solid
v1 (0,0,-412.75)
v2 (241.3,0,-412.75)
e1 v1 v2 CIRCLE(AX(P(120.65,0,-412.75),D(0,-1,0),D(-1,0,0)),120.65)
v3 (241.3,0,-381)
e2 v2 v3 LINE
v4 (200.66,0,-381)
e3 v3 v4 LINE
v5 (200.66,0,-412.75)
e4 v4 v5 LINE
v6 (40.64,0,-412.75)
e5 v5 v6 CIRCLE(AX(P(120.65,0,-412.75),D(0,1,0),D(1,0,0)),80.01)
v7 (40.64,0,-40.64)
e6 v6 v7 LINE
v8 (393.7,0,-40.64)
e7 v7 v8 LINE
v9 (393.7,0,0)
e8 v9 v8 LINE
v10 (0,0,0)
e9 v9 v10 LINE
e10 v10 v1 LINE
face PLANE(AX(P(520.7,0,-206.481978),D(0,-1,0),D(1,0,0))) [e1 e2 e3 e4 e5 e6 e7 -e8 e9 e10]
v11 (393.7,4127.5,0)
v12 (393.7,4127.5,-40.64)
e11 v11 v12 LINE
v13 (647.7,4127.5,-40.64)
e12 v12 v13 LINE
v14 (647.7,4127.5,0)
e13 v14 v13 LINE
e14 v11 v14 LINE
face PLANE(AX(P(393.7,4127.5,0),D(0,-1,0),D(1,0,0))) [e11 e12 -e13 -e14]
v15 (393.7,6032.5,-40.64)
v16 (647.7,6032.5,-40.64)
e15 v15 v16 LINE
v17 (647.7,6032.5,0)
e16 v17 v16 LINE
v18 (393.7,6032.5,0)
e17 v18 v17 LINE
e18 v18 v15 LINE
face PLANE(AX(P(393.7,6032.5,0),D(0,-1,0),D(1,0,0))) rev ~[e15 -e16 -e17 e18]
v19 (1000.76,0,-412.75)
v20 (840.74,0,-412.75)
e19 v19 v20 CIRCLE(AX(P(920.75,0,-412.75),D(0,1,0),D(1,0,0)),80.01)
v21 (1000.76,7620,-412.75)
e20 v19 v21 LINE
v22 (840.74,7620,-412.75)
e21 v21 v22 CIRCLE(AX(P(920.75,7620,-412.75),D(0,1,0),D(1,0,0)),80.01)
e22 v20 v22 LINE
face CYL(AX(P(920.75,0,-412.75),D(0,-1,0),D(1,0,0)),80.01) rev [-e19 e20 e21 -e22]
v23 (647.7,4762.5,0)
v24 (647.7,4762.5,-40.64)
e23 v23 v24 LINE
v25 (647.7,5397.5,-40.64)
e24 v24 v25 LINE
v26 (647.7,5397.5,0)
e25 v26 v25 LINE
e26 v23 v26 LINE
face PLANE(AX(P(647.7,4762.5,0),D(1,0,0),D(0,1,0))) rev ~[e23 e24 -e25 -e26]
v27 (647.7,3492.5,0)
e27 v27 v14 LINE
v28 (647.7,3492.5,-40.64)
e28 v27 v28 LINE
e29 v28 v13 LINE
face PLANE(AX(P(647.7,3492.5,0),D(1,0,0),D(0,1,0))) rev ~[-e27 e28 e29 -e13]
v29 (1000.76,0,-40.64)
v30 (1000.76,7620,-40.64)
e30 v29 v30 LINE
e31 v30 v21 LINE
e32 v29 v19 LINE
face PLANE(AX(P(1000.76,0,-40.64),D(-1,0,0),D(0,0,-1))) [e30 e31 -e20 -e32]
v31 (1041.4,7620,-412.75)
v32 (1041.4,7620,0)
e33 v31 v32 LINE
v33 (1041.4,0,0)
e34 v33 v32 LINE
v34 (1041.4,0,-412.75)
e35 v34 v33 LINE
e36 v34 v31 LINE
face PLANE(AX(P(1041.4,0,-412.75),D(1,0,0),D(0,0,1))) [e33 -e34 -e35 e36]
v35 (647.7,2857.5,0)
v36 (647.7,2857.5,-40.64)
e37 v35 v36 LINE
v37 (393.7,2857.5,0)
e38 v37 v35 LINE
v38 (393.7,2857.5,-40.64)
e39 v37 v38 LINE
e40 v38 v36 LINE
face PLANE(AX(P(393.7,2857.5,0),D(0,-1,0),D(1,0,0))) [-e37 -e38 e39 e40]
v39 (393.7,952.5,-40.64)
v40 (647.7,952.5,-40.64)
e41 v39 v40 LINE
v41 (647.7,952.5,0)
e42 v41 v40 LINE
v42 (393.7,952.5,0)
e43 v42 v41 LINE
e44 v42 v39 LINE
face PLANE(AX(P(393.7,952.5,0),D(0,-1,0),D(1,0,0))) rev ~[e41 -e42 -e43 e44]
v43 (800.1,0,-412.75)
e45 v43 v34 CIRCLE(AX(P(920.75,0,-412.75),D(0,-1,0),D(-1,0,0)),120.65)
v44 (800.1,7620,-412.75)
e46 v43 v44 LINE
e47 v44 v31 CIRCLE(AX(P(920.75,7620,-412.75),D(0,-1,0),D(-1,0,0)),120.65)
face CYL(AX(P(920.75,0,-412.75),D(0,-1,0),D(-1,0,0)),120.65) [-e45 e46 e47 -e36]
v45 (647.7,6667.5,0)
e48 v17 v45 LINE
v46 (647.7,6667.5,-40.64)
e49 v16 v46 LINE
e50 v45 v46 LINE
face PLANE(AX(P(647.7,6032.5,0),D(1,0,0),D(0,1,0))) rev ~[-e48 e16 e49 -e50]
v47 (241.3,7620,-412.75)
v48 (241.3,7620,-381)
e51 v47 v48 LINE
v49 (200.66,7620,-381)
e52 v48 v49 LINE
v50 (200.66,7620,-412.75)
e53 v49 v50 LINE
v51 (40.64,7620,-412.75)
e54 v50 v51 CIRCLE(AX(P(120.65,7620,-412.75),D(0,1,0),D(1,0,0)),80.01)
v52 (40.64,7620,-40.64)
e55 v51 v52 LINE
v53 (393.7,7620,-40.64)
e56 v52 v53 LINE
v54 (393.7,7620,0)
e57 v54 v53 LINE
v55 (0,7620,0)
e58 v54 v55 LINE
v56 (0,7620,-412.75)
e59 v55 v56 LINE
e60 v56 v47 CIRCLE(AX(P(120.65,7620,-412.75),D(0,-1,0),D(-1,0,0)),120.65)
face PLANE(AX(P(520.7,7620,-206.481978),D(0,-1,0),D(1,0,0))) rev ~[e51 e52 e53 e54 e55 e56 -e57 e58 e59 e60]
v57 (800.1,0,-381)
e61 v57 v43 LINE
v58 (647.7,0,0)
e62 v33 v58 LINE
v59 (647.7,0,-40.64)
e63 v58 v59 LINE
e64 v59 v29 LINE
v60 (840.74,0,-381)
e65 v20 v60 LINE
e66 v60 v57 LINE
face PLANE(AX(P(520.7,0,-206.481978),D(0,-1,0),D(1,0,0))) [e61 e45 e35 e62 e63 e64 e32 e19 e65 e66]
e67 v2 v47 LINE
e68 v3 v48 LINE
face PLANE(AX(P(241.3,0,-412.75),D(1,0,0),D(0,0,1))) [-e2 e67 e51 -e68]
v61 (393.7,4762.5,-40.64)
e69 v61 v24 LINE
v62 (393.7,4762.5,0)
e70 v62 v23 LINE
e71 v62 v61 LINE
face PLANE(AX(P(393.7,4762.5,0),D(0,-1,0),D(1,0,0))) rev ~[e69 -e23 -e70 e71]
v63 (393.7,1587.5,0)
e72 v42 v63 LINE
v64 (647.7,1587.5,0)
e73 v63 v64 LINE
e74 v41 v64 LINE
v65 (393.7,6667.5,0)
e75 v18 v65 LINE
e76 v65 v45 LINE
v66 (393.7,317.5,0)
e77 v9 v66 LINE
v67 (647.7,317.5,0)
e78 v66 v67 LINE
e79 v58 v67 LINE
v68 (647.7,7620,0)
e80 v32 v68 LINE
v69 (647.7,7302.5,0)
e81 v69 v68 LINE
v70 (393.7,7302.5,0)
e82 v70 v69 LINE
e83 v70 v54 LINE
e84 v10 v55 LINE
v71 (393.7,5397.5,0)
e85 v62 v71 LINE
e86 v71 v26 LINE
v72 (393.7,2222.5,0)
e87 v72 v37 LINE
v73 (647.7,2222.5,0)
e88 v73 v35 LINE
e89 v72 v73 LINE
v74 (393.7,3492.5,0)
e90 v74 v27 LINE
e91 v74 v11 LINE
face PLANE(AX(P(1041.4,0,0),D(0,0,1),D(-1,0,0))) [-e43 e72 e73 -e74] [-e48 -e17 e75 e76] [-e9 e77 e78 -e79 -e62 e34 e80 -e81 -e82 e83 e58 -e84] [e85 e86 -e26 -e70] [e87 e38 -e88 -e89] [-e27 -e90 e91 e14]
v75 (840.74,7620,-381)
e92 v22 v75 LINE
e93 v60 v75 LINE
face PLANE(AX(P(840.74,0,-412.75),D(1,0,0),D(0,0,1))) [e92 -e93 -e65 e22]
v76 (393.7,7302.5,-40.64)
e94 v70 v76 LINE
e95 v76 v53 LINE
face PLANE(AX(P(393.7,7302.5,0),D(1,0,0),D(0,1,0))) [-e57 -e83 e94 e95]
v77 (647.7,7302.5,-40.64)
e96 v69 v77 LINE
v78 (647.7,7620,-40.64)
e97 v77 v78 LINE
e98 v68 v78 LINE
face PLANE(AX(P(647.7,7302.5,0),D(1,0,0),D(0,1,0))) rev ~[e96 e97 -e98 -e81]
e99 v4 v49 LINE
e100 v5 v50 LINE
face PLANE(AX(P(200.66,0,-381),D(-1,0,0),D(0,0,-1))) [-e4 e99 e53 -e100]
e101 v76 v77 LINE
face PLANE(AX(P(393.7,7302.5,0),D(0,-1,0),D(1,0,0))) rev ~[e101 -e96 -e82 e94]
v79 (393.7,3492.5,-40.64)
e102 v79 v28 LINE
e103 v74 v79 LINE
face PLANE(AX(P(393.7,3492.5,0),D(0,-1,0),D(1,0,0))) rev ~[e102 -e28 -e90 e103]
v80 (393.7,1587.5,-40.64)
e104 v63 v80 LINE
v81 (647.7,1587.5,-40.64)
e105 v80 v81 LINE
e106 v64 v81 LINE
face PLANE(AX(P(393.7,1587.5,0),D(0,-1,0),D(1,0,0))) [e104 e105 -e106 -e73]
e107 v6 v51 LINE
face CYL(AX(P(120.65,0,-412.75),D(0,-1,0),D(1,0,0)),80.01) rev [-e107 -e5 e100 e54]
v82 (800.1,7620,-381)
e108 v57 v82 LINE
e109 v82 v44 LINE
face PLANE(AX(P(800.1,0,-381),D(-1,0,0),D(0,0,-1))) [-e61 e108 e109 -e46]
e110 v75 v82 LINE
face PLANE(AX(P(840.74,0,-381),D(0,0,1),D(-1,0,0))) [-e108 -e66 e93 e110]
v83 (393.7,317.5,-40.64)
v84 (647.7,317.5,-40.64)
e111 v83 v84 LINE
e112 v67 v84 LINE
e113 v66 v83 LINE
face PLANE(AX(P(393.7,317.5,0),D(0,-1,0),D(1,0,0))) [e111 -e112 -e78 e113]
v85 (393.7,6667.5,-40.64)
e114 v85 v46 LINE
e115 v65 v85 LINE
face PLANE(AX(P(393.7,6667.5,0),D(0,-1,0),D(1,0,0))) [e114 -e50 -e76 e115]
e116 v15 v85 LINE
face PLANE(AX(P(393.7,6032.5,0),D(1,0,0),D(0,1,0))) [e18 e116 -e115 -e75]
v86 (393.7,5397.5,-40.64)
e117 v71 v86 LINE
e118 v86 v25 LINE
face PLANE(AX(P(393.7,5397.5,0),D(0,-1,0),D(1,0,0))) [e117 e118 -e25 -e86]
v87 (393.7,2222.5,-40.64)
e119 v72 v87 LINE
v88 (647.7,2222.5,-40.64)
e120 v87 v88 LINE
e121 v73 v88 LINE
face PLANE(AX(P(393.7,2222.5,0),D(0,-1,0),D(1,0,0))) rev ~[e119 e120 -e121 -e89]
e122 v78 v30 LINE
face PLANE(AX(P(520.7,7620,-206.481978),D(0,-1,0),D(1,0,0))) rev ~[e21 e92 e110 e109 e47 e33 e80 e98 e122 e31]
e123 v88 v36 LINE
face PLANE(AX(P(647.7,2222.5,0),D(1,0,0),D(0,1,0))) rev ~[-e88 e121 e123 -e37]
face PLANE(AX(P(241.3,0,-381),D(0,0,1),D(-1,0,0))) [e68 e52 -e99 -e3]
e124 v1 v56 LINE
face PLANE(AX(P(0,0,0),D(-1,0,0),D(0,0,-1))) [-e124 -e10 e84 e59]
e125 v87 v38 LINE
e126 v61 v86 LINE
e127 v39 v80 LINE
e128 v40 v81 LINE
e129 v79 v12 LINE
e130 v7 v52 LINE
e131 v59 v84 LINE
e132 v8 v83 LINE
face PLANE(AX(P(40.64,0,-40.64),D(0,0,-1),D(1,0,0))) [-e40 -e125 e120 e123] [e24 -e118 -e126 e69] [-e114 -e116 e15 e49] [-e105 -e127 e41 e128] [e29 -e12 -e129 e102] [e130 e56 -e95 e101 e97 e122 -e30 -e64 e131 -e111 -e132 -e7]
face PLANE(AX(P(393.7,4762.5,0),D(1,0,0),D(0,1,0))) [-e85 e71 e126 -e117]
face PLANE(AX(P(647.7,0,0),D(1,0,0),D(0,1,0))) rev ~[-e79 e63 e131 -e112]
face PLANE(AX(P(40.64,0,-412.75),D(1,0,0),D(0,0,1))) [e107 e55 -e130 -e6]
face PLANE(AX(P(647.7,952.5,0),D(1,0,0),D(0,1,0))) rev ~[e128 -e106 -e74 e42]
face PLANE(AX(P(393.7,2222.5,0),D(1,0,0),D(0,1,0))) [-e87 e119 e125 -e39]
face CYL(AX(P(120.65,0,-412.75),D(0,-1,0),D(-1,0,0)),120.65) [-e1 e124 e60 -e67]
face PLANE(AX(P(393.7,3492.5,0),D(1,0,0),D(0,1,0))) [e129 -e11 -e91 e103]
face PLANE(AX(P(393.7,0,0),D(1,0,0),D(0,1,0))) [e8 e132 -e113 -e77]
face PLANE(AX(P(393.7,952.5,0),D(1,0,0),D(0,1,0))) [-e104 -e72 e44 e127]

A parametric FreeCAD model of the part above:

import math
import FreeCAD as App
import Part
import Sketcher
Q = App.Units.Quantity


def add_polygon(sketch, points):
    """Adds a closed chain of lines whose ends are joined by coincident constraints."""
    first, n = sketch.GeometryCount, len(points)
    for a, b in zip(points, points[1:] + points[:1]):
        sketch.addGeometry(Part.LineSegment(App.Vector(*a, 0), App.Vector(*b, 0)), False)
    for i in range(n):
        sketch.addConstraint(Sketcher.Constraint("Coincident", first + i, 2, first + (i + 1) % n, 1))

doc = App.newDocument("Part")
body = doc.addObject("PartDesign::Body", "Body")

sketch1 = body.newObject("Sketcher::SketchObject", "Sketch")
sketch1.AttachmentSupport = (doc.getObject("XZ_Plane"), [""])
sketch1.MapMode = "FlatFace"
sketch1.addGeometry([
    Part.LineSegment(App.Vector(1041, 0, 0), App.Vector(0, 0, 0)),
    Part.LineSegment(App.Vector(0, 0, 0), App.Vector(0, -413, 0)),
    Part.ArcOfCircle(Part.Circle(App.Vector(121, -413, 0), App.Vector(0, 0, 1), 121), math.radians(180), math.radians(360)),
    Part.LineSegment(App.Vector(241, -413, 0), App.Vector(241, -381, 0)),
    Part.LineSegment(App.Vector(241, -381, 0), App.Vector(201, -381, 0)),
    Part.LineSegment(App.Vector(201, -381, 0), App.Vector(201, -413, 0)),
    Part.ArcOfCircle(Part.Circle(App.Vector(121, -413, 0), App.Vector(0, 0, 1), 80), math.radians(180), math.radians(360)),
    Part.LineSegment(App.Vector(41, -413, 0), App.Vector(41, -41, 0)),
    Part.LineSegment(App.Vector(41, -41, 0), App.Vector(1001, -41, 0)),
    Part.LineSegment(App.Vector(1001, -41, 0), App.Vector(1001, -413, 0)),
    Part.ArcOfCircle(Part.Circle(App.Vector(921, -413, 0), App.Vector(0, 0, 1), 80), math.radians(180), math.radians(360)),
    Part.LineSegment(App.Vector(841, -413, 0), App.Vector(841, -381, 0)),
    Part.LineSegment(App.Vector(841, -381, 0), App.Vector(800, -381, 0)),
    Part.LineSegment(App.Vector(800, -381, 0), App.Vector(800, -413, 0)),
    Part.ArcOfCircle(Part.Circle(App.Vector(921, -413, 0), App.Vector(0, 0, 1), 121), math.radians(180), math.radians(360)),
    Part.LineSegment(App.Vector(1041, -413, 0), App.Vector(1041, 0, 0)),
], False)
sketch1.addConstraint([
    Sketcher.Constraint("Coincident", 0, 2, 1, 1),
    Sketcher.Constraint("Tangent", 1, 2, 2, 1),
    Sketcher.Constraint("Tangent", 2, 2, 3, 1),
    Sketcher.Constraint("Coincident", 3, 2, 4, 1),
    Sketcher.Constraint("Coincident", 4, 2, 5, 1),
    Sketcher.Constraint("Tangent", 5, 2, 6, 2),
    Sketcher.Constraint("Tangent", 6, 1, 7, 1),
    Sketcher.Constraint("Coincident", 7, 2, 8, 1),
    Sketcher.Constraint("Coincident", 8, 2, 9, 1),
    Sketcher.Constraint("Tangent", 9, 2, 10, 2),
    Sketcher.Constraint("Tangent", 10, 1, 11, 1),
    Sketcher.Constraint("Coincident", 11, 2, 12, 1),
    Sketcher.Constraint("Coincident", 12, 2, 13, 1),
    Sketcher.Constraint("Tangent", 13, 2, 14, 1),
    Sketcher.Constraint("Tangent", 14, 2, 15, 1),
    Sketcher.Constraint("Coincident", 15, 2, 0, 1),
    Sketcher.Constraint("Horizontal", 0),
    Sketcher.Constraint("Vertical", 1),
    Sketcher.Constraint("Vertical", 3),
    Sketcher.Constraint("Horizontal", 4),
    Sketcher.Constraint("Vertical", 5),
    Sketcher.Constraint("Vertical", 7),
    Sketcher.Constraint("Horizontal", 8),
    Sketcher.Constraint("Vertical", 9),
    Sketcher.Constraint("Vertical", 11),
    Sketcher.Constraint("Horizontal", 12),
    Sketcher.Constraint("Vertical", 13),
    Sketcher.Constraint("Vertical", 15),
    Sketcher.Constraint("Coincident", 0, 2, -1, 1),
    Sketcher.Constraint("Coincident", 6, 3, 2, 3),
    Sketcher.Constraint("Coincident", 14, 3, 10, 3),
    Sketcher.Constraint("Equal", 6, 10),
    Sketcher.Constraint("Equal", 2, 14),
    Sketcher.Constraint("Horizontal", 6, 3, 10, 3),
    Sketcher.Constraint("Horizontal", 4, 2, 11, 2),
    Sketcher.Constraint("DistanceX", 0, 2, 0, 1, Q("41 in")),
    Sketcher.Constraint("Radius", 2, Q("4.75 in")),
    Sketcher.Constraint("Radius", 6, Q("3.15 in")),
    Sketcher.Constraint("DistanceY", 3, 2, -1, 1, Q("15 in")),
    Sketcher.Constraint("DistanceY", 1, 2, 1, 1, Q("16.25 in")),
    Sketcher.Constraint("DistanceY", 7, 1, 7, 2, Q("14.65 in")),
])
pad1 = body.newObject("PartDesign::Pad", "Pad")
pad1.Profile = sketch1
pad1.Length = Q("300 in")
pad1.Reversed = True

sketch2 = body.newObject("Sketcher::SketchObject", "Sketch001")
sketch2.AttachmentSupport = (doc.getObject("XY_Plane"), [""])
sketch2.MapMode = "FlatFace"
add_polygon(sketch2, [(394, 318), (394, 0), (648, 0), (648, 318)])
add_polygon(sketch2, [(394, 1588), (394, 952), (648, 952), (648, 1588)])
add_polygon(sketch2, [(394, 2858), (394, 2222), (648, 2222), (648, 2858)])
add_polygon(sketch2, [(394, 4128), (394, 3492), (648, 3492), (648, 4128)])
add_polygon(sketch2, [(394, 5398), (394, 4762), (648, 4762), (648, 5398)])
add_polygon(sketch2, [(394, 6668), (394, 6032), (648, 6032), (648, 6668)])
add_polygon(sketch2, [(394, 7620), (394, 7302), (648, 7302), (648, 7620)])
sketch2.addConstraint([
    Sketcher.Constraint("Vertical", 0),
    Sketcher.Constraint("Horizontal", 1),
    Sketcher.Constraint("Vertical", 2),
    Sketcher.Constraint("Horizontal", 3),
    Sketcher.Constraint("Vertical", 4),
    Sketcher.Constraint("Horizontal", 5),
    Sketcher.Constraint("Vertical", 6),
    Sketcher.Constraint("Horizontal", 7),
    Sketcher.Constraint("Vertical", 8),
    Sketcher.Constraint("Horizontal", 9),
    Sketcher.Constraint("Vertical", 10),
    Sketcher.Constraint("Horizontal", 11),
    Sketcher.Constraint("Vertical", 12),
    Sketcher.Constraint("Horizontal", 13),
    Sketcher.Constraint("Vertical", 14),
    Sketcher.Constraint("Horizontal", 15),
    Sketcher.Constraint("Vertical", 16),
    Sketcher.Constraint("Horizontal", 17),
    Sketcher.Constraint("Vertical", 18),
    Sketcher.Constraint("Horizontal", 19),
    Sketcher.Constraint("Vertical", 20),
    Sketcher.Constraint("Horizontal", 21),
    Sketcher.Constraint("Vertical", 22),
    Sketcher.Constraint("Horizontal", 23),
    Sketcher.Constraint("Vertical", 24),
    Sketcher.Constraint("Horizontal", 25),
    Sketcher.Constraint("Vertical", 26),
    Sketcher.Constraint("Horizontal", 27),
    Sketcher.Constraint("PointOnObject", 0, 2, -1),
    Sketcher.Constraint("Vertical", 3, 2, 4, 2),
    Sketcher.Constraint("Vertical", 2, 2, 5, 2),
    Sketcher.Constraint("Vertical", 7, 2, 8, 2),
    Sketcher.Constraint("Vertical", 6, 2, 9, 2),
    Sketcher.Constraint("Vertical", 11, 2, 12, 2),
    Sketcher.Constraint("Vertical", 10, 2, 13, 2),
    Sketcher.Constraint("Vertical", 15, 2, 16, 2),
    Sketcher.Constraint("Vertical", 14, 2, 17, 2),
    Sketcher.Constraint("Vertical", 19, 2, 20, 2),
    Sketcher.Constraint("Vertical", 18, 2, 21, 2),
    Sketcher.Constraint("Vertical", 23, 2, 24, 2),
    Sketcher.Constraint("Vertical", 22, 2, 25, 2),
    Sketcher.Constraint("Equal", 6, 8),
    Sketcher.Constraint("Equal", 10, 12),
    Sketcher.Constraint("Equal", 14, 16),
    Sketcher.Constraint("Equal", 18, 20),
    Sketcher.Constraint("Equal", 2, 24),
    Sketcher.Constraint("DistanceX", 1, 1, 1, 2, Q("10 in")),
    Sketcher.Constraint("DistanceY", 4, 2, 4, 1, Q("25 in")),
    Sketcher.Constraint("DistanceY", 0, 2, 0, 1, Q("12.5 in")),
    Sketcher.Constraint("DistanceY", -1, 1, 26, 2, Q("300 in")),
    Sketcher.Constraint("DistanceY", 3, 2, 4, 2, Q("25 in")),
    Sketcher.Constraint("DistanceY", 7, 2, 8, 2, Q("25 in")),
    Sketcher.Constraint("DistanceY", 11, 2, 12, 2, Q("25 in")),
    Sketcher.Constraint("DistanceY", 15, 2, 16, 2, Q("25 in")),
    Sketcher.Constraint("DistanceY", 19, 2, 20, 2, Q("25 in")),
    Sketcher.Constraint("DistanceX", -1, 1, 0, 2, Q("15.5 in")),
])
pocket1 = body.newObject("PartDesign::Pocket", "Pocket")
pocket1.Profile = sketch2
pocket1.Length = Q("1.6 in")

doc.recompute()
